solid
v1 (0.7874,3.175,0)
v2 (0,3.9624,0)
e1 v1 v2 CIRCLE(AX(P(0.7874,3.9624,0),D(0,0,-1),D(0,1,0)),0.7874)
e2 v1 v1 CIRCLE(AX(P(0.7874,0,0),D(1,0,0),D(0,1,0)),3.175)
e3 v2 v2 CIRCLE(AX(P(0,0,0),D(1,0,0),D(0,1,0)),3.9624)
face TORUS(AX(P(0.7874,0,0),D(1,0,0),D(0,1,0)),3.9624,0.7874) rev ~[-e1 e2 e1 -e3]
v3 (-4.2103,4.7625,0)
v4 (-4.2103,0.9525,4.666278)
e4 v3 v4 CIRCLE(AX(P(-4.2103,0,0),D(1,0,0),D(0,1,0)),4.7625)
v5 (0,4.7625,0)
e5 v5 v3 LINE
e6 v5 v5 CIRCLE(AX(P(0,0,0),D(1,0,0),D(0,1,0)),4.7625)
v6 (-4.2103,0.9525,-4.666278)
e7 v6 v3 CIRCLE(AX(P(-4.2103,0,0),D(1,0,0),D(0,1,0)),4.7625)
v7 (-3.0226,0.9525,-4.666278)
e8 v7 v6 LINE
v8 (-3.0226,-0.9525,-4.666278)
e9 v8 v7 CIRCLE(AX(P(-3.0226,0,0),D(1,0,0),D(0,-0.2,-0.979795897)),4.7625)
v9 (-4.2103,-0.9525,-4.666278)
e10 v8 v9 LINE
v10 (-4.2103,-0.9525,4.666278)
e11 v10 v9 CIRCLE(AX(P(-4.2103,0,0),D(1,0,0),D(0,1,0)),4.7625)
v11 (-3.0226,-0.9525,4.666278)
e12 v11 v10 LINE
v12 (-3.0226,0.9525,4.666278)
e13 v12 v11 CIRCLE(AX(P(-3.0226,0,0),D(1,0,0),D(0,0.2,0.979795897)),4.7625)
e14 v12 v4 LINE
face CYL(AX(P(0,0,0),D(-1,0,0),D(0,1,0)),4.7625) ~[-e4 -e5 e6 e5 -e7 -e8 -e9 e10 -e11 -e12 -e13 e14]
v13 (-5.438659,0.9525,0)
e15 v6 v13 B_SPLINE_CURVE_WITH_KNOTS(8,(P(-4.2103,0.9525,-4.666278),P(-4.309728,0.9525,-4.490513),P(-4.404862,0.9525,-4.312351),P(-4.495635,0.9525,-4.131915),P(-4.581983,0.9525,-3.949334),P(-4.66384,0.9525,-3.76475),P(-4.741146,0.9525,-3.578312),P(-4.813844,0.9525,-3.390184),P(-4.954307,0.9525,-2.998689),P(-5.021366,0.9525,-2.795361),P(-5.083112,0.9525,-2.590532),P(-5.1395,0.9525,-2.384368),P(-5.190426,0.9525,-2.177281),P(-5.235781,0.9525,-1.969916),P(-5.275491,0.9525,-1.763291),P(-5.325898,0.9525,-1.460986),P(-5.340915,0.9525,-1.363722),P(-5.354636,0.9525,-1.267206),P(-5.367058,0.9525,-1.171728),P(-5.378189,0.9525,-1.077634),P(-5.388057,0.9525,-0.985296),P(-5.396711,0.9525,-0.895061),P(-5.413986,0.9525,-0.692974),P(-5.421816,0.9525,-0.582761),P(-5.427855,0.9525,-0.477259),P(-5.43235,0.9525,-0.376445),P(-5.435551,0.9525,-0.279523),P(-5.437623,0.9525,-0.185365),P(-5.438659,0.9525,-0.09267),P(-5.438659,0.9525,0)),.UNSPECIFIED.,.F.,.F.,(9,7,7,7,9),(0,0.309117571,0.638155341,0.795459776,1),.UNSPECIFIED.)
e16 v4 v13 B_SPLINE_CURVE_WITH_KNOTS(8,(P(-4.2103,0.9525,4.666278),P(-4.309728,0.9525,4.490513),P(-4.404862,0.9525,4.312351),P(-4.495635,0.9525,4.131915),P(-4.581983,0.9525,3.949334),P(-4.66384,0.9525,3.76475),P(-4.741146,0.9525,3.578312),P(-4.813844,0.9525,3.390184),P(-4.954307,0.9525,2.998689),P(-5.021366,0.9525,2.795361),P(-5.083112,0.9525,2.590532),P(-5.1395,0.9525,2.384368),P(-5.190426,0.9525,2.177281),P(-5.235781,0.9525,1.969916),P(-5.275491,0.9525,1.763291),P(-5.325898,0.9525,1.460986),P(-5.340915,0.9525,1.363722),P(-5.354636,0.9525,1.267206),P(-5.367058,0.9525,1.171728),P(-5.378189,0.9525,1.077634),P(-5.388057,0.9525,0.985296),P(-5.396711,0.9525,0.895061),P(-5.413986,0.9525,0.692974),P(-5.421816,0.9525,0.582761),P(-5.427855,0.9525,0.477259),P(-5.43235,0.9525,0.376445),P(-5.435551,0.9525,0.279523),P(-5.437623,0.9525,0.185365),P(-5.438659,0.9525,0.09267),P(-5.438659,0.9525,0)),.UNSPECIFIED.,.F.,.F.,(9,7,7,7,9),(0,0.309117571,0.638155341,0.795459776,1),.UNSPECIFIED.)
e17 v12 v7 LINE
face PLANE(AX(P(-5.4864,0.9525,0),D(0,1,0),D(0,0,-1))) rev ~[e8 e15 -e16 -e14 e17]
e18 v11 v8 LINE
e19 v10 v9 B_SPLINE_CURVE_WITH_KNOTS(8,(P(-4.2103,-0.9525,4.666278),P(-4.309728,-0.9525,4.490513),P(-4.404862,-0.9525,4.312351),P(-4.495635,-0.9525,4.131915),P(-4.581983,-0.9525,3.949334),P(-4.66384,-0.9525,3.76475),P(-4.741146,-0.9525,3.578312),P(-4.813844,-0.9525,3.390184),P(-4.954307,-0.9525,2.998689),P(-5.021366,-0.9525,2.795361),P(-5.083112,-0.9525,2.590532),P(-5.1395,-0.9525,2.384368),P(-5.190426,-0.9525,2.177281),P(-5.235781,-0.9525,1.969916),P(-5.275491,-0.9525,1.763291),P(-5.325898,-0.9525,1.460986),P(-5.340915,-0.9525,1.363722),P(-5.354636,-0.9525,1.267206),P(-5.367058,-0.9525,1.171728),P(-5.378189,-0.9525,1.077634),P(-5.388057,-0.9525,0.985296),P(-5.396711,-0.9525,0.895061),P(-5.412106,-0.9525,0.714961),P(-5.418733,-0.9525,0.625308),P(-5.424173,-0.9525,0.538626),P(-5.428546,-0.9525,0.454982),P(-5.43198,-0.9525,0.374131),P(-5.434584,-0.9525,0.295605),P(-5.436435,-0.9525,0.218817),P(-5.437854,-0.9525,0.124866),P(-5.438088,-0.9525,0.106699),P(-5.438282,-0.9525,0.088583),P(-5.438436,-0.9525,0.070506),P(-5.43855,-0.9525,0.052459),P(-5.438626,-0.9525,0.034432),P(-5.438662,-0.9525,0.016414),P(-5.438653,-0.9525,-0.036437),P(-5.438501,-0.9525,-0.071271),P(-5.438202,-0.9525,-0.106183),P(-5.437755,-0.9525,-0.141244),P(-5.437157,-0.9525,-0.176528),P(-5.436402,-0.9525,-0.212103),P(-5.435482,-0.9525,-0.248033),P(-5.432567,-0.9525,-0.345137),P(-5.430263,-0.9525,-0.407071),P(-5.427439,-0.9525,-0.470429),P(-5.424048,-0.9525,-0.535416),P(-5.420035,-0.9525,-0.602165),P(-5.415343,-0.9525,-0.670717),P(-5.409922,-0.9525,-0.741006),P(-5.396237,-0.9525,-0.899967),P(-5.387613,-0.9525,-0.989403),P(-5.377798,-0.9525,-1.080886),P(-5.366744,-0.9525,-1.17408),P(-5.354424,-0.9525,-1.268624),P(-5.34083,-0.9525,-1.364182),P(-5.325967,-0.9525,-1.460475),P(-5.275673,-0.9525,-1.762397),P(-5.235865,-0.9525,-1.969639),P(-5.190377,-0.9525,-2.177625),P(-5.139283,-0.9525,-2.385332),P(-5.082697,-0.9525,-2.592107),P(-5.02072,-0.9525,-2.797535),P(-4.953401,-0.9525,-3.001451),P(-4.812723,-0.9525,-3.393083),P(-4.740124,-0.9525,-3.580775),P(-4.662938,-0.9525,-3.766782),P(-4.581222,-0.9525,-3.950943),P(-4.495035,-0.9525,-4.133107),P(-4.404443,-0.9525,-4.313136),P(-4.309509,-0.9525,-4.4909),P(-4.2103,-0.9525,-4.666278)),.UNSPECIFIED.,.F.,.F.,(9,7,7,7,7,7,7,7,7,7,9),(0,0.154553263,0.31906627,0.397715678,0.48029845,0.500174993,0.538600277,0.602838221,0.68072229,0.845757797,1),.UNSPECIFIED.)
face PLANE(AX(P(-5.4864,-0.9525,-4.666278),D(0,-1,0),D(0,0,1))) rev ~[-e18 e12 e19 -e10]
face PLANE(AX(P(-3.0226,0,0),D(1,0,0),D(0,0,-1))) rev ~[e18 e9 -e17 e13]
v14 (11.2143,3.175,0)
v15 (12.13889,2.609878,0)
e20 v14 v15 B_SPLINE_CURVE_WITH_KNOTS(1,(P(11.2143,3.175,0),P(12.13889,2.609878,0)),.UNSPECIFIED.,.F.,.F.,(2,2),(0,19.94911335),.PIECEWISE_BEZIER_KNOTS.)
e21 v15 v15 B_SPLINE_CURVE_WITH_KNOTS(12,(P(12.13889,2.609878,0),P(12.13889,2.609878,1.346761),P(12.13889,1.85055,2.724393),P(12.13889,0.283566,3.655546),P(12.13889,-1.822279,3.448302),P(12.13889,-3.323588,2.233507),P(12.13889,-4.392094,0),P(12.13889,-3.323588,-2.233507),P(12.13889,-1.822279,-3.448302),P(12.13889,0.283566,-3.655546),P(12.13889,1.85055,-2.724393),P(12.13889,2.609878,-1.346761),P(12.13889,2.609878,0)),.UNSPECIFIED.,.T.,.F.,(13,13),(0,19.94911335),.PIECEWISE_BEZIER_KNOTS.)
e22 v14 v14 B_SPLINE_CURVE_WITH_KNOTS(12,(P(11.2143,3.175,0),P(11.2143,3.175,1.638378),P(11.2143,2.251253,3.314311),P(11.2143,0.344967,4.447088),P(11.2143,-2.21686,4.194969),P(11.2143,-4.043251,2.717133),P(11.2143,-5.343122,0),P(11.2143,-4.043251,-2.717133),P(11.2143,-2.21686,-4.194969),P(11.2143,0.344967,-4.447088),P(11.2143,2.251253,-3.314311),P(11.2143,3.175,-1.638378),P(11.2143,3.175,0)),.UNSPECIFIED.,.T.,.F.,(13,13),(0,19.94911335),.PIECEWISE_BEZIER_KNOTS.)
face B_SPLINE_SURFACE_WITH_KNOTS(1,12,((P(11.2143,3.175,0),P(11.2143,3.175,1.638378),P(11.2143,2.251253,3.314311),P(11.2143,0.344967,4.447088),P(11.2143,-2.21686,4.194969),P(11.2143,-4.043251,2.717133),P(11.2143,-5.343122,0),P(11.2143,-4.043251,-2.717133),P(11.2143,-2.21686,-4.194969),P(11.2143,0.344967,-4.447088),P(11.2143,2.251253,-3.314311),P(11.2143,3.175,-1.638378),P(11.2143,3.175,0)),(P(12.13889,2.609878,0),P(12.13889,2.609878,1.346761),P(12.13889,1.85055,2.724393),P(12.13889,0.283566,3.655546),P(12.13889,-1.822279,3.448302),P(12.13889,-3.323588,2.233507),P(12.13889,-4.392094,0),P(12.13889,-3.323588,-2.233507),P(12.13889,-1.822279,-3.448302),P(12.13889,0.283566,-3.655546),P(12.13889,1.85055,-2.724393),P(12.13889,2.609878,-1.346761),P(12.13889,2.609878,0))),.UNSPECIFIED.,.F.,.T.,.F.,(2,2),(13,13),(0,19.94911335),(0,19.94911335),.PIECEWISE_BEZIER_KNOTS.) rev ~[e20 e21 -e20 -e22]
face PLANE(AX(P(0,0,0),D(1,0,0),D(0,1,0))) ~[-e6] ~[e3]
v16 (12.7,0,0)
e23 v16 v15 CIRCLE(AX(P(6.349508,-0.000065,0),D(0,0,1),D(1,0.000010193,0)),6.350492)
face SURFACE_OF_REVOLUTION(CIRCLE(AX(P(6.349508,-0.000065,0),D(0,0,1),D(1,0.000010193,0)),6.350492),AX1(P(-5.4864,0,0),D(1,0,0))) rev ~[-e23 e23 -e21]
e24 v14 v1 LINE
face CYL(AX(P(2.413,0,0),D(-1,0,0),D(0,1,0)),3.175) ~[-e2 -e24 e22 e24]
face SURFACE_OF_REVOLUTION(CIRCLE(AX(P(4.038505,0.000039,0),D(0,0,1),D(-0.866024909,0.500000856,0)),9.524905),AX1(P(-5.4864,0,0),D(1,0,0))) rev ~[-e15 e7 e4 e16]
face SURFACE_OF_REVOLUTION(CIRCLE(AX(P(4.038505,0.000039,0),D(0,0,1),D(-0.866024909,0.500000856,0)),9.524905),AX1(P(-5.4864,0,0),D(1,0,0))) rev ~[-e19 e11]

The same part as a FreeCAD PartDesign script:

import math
import FreeCAD as App
import Part
import Sketcher

V = App.Vector
Q = App.Units.Quantity


def edges_at(feature, points):
    """Names of the edges that pass closest to the given points."""
    edges = feature.Shape.Edges
    near = lambda p: min(range(len(edges)), key=lambda i: edges[i].distToShape(Part.Vertex(*p))[0])
    return sorted({f"Edge{near(p) + 1}" for p in points})

doc = App.newDocument("Part")
body = doc.addObject("PartDesign::Body", "Body")

# Sketch on XY plane
sketch1 = body.newObject("Sketcher::SketchObject", "Sketch")
sketch1.AttachmentSupport = (doc.getObject("XY_Plane"), [""])
sketch1.MapMode = "FlatFace"
sketch1.addGeometry([
    Part.ArcOfCircle(Part.Circle(V(4.0386, 0, 0), V(0, 0, 1), 9.525007), math.radians(150.000024), math.radians(180)),  # 0
    Part.LineSegment(V(-5.4864, 0, 0), V(12.7, 0, 0)),  # 1
    Part.LineSegment(V(12.7, 0, 0), V(12.7, 3.175, 0)),  # 2
    Part.LineSegment(V(12.7, 3.175, 0), V(0, 3.175, 0)),  # 3
    Part.LineSegment(V(0, 3.175, 0), V(0, 4.7625, 0)),  # 4
    Part.LineSegment(V(0, 4.7625, 0), V(-4.2103, 4.7625, 0)),  # 5
], False)
sketch1.addConstraint([
    Sketcher.Constraint("Coincident", 0, 2, 1, 1),
    Sketcher.Constraint("Coincident", 1, 2, 2, 1),
    Sketcher.Constraint("Coincident", 2, 2, 3, 1),
    Sketcher.Constraint("Coincident", 3, 2, 4, 1),
    Sketcher.Constraint("Coincident", 4, 2, 5, 1),
    Sketcher.Constraint("Coincident", 5, 2, 0, 1),
    Sketcher.Constraint("Horizontal", 1),
    Sketcher.Constraint("Vertical", 2),
    Sketcher.Constraint("Horizontal", 3),
    Sketcher.Constraint("Vertical", 4),
    Sketcher.Constraint("Horizontal", 5),
    Sketcher.Constraint("PointOnObject", 0, 3, -1),
    Sketcher.Constraint("PointOnObject", 0, 2, -1),
    Sketcher.Constraint("PointOnObject", 3, 2, -2),
    Sketcher.Constraint("DistanceX", 3, 2, 3, 1, Q("0.5 in")),
    Sketcher.Constraint("Radius", 0, Q("0.375 in")),
    Sketcher.Constraint("DistanceX", 0, 2, -1, 1, Q("0.216 in")),
    Sketcher.Constraint("DistanceY", 2, 1, 2, 2, Q("0.125 in")),
    Sketcher.Constraint("DistanceY", 4, 1, 4, 2, Q("0.0625 in")),
])
revolution = body.newObject("PartDesign::Revolution", "Revolution")
revolution.Profile = sketch1
revolution.ReferenceAxis = (sketch1, ["H_Axis"])
revolution.Angle = 360

# Sketch on YZ plane
sketch2 = body.newObject("Sketcher::SketchObject", "Sketch001")
sketch2.AttachmentSupport = (doc.getObject("YZ_Plane"), [""])
sketch2.MapMode = "FlatFace"
sketch2.AttachmentOffset = App.Placement(V(0, 0, -0.216 * 25.4), App.Rotation())
sketch2.addGeometry([
    Part.LineSegment(V(0.9525, 4.7625, 0), V(-0.9525, 4.7625, 0)),
    Part.LineSegment(V(-0.9525, 4.7625, 0), V(-0.9525, -4.7625, 0)),
    Part.LineSegment(V(-0.9525, -4.7625, 0), V(0.9525, -4.7625, 0)),
    Part.LineSegment(V(0.9525, -4.7625, 0), V(0.9525, 4.7625, 0)),
], False)
sketch2.addConstraint([
    Sketcher.Constraint("Coincident", 0, 2, 1, 1),
    Sketcher.Constraint("Coincident", 1, 2, 2, 1),
    Sketcher.Constraint("Coincident", 2, 2, 3, 1),
    Sketcher.Constraint("Coincident", 3, 2, 0, 1),
    Sketcher.Constraint("Horizontal", 0),
    Sketcher.Constraint("Vertical", 1),
    Sketcher.Constraint("Horizontal", 2),
    Sketcher.Constraint("Vertical", 3),
    Sketcher.Constraint("Symmetric", 0, 2, 2, 2, -1, 1),
    Sketcher.Constraint("DistanceX", 0, 2, 0, 1, Q("0.075 in")),
    Sketcher.Constraint("DistanceY", 1, 2, 1, 1, Q("0.375 in")),
])
pocket1 = body.newObject("PartDesign::Pocket", "Pocket")
pocket1.Profile = sketch2
pocket1.Length = Q("0.097 in")
pocket1.Reversed = True

# Sketch on XY plane
sketch3 = body.newObject("Sketcher::SketchObject", "Sketch002")
sketch3.AttachmentSupport = (doc.getObject("XY_Plane"), [""])
sketch3.MapMode = "FlatFace"
sketch3.addGeometry([
    Part.ArcOfCircle(Part.Circle(V(6.35, 0, 0), V(0, 0, 1), 6.35), math.radians(0), math.radians(29.999825)),
    Part.LineSegment(V(12.7, 0, 0), V(12.7, 3.175, 0)),
    Part.LineSegment(V(12.7, 3.175, 0), V(11.8493, 3.175, 0)),
], False)
sketch3.addConstraint([
    Sketcher.Constraint("Tangent", 0, 1, 1, 1),
    Sketcher.Constraint("Coincident", 1, 2, 2, 1),
    Sketcher.Constraint("Coincident", 2, 2, 0, 2),
    Sketcher.Constraint("Vertical", 1),
    Sketcher.Constraint("Horizontal", 2),
    Sketcher.Constraint("PointOnObject", 0, 3, -1),
    Sketcher.Constraint("Radius", 0, Q("0.25 in")),
    Sketcher.Constraint("DistanceX", -1, 1, 0, 3, Q("0.25 in")),
    Sketcher.Constraint("DistanceY", 1, 1, 1, 2, Q("0.125 in")),
])
groove = body.newObject("PartDesign::Groove", "Groove")
groove.Profile = sketch3
groove.ReferenceAxis = (sketch3, ["H_Axis"])
groove.Angle = 360
doc.recompute()

chamfer = body.newObject("PartDesign::Chamfer", "Chamfer")
chamfer.Base = (groove, edges_at(groove, [(11.849, -3.175, 0)]))
chamfer.Size = Q("0.025 in")
doc.recompute()

fillet = body.newObject("PartDesign::Fillet", "Fillet")
fillet.Base = (chamfer, edges_at(chamfer, [(0, -3.175, 0)]))
fillet.Radius = Q("0.031 in")

doc.recompute()
